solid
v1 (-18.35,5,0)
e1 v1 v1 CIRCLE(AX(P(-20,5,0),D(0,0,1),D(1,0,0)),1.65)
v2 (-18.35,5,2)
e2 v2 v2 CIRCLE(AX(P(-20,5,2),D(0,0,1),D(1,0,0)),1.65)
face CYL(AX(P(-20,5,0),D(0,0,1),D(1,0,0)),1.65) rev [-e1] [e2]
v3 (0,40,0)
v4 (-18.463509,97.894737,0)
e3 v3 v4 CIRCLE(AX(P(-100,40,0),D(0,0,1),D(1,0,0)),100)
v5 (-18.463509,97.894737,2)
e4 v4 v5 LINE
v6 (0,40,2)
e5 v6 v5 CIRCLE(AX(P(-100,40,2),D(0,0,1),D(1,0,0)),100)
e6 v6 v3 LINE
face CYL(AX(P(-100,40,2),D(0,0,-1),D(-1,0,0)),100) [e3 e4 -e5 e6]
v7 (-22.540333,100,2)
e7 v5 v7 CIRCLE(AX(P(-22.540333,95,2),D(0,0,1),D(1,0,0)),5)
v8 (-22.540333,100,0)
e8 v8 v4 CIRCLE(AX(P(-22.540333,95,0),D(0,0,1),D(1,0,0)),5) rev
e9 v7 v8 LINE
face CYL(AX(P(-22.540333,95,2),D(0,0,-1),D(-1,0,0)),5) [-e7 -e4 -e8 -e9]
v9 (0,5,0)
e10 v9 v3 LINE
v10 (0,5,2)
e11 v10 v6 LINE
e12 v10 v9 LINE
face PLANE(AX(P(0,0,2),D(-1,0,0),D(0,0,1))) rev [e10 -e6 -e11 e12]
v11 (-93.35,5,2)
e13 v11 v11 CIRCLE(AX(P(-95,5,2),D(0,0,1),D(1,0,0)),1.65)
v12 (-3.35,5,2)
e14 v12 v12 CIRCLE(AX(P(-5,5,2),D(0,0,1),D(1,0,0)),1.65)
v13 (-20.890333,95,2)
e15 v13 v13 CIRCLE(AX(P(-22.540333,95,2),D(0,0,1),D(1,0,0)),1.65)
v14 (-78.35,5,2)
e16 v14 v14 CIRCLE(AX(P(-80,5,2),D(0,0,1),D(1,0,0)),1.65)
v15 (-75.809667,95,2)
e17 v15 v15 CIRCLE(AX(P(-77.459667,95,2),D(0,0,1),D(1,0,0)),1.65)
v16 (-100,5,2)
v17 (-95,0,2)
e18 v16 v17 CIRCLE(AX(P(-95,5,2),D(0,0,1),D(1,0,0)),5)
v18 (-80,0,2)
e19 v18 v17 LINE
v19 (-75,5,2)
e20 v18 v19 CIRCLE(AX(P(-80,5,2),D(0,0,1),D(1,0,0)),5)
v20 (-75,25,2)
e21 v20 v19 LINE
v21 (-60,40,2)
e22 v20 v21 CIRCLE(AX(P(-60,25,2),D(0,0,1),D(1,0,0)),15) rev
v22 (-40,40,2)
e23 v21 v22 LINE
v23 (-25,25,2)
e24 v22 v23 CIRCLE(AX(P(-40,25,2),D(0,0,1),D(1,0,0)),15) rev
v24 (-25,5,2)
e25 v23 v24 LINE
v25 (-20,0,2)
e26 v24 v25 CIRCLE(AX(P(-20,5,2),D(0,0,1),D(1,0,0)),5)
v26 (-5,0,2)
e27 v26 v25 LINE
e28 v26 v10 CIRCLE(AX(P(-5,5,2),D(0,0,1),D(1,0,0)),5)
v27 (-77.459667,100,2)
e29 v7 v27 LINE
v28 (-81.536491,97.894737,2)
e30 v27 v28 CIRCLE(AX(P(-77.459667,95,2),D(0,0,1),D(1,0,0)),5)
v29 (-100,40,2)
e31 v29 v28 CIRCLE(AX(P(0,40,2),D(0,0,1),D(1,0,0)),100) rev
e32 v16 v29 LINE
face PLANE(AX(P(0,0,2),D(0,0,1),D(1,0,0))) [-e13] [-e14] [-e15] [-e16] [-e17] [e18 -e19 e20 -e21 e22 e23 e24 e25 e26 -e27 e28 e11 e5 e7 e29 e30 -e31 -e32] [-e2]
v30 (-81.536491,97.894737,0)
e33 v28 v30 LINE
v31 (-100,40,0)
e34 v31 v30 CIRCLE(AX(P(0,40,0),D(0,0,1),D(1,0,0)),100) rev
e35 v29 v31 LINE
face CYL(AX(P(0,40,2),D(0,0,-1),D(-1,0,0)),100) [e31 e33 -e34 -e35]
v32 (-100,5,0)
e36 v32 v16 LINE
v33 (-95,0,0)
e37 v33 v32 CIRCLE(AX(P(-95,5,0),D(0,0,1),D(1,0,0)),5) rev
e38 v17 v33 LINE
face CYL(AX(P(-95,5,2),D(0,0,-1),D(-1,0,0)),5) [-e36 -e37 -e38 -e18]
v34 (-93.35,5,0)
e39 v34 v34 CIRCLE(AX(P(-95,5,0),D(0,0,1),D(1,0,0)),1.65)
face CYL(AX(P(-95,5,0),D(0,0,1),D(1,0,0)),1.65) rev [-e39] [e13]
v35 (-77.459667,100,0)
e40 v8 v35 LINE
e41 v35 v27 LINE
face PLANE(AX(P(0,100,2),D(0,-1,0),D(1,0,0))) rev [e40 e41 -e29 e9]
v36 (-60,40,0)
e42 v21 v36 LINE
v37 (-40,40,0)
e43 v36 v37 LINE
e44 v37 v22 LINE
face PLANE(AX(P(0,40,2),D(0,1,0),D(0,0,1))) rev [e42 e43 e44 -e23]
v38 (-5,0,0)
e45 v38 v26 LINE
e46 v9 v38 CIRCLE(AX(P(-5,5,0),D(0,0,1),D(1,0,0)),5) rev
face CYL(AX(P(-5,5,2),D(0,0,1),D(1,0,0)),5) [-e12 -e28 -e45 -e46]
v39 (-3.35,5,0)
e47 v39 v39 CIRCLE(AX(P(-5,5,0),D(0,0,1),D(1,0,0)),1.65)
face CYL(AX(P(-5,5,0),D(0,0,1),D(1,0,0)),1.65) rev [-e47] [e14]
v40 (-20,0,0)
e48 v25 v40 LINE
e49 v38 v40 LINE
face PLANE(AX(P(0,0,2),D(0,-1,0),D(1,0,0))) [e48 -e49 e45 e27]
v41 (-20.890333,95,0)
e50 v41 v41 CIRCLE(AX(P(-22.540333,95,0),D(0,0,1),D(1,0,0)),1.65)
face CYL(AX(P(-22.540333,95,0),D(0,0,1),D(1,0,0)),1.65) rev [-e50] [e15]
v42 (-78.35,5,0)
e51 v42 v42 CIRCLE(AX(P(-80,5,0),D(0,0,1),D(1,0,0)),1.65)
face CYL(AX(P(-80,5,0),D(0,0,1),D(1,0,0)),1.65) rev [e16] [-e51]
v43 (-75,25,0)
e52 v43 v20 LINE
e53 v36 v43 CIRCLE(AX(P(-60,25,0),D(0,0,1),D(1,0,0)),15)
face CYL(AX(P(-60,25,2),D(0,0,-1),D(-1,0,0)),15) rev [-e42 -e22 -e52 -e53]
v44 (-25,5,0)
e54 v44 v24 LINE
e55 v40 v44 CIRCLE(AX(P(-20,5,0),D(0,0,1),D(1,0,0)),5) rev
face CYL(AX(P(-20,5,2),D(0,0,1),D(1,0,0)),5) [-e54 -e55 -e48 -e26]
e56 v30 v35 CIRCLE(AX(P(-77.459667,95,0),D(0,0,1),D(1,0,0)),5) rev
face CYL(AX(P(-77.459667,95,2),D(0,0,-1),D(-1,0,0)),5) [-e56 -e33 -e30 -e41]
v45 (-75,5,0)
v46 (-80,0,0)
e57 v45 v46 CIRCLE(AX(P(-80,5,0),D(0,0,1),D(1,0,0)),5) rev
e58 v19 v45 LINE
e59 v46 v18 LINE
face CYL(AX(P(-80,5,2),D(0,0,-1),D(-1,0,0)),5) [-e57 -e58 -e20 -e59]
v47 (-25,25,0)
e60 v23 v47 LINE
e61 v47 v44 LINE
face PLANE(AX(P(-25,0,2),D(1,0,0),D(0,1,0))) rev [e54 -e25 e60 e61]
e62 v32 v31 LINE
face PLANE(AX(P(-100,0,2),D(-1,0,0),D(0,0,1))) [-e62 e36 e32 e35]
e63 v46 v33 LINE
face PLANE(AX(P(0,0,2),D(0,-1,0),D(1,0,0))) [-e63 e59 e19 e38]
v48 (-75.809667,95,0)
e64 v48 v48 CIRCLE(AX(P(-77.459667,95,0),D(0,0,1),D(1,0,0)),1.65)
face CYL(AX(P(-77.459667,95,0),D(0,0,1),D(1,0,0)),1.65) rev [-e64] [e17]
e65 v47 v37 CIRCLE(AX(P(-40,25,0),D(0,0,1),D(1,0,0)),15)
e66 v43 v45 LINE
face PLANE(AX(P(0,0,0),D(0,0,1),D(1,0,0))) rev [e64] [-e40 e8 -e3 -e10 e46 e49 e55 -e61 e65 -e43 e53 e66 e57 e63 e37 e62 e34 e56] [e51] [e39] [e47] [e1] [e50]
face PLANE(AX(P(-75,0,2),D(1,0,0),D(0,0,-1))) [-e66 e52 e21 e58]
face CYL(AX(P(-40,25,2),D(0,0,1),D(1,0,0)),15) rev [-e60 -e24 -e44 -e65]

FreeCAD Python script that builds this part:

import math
import FreeCAD as App
import Part
import Sketcher
from FreeCAD import Vector
Q = App.Units.Quantity


def edges_at(feature, points):
    """Names of the edges that pass closest to the given points."""
    edges = feature.Shape.Edges
    near = lambda p: min(range(len(edges)), key=lambda i: edges[i].distToShape(Part.Vertex(*p))[0])
    return sorted({f"Edge{near(p) + 1}" for p in points})

doc = App.newDocument("Part")
body = doc.addObject("PartDesign::Body", "Body")

# Sketch on XY plane
sketch1 = doc.addObject("Sketcher::SketchObject", "Sketch")
body.addObject(sketch1)
sketch1.AttachmentSupport = (doc.XY_Plane, [""])
sketch1.MapMode = "FlatFace"
sketch1.addGeometry(Part.ArcOfCircle(Part.Circle(Vector(-100, 40, 0), Vector(0, 0, 1), 100), math.radians(0), math.radians(37)), False)
sketch1.addGeometry(Part.LineSegment(Vector(-20, 100, 0), Vector(-80, 100, 0)), False)
sketch1.addGeometry(Part.ArcOfCircle(Part.Circle(Vector(0, 40, 0), Vector(0, 0, 1), 100), math.radians(143), math.radians(180)), False)
sketch1.addGeometry(Part.LineSegment(Vector(-100, 40, 0), Vector(-100, 0, 0)), False)
sketch1.addGeometry(Part.LineSegment(Vector(-100, 0, 0), Vector(-75, 0, 0)), False)
sketch1.addGeometry(Part.LineSegment(Vector(-75, 0, 0), Vector(-75, 40, 0)), False)
sketch1.addGeometry(Part.LineSegment(Vector(-75, 40, 0), Vector(-25, 40, 0)), False)
sketch1.addGeometry(Part.LineSegment(Vector(-25, 40, 0), Vector(-25, 0, 0)), False)
sketch1.addGeometry(Part.LineSegment(Vector(-25, 0, 0), Vector(0, 0, 0)), False)
sketch1.addGeometry(Part.LineSegment(Vector(0, 0, 0), Vector(0, 40, 0)), False)
sketch1.addConstraint(Sketcher.Constraint("Coincident", 0, 2, 1, 1))
sketch1.addConstraint(Sketcher.Constraint("Coincident", 1, 2, 2, 1))
sketch1.addConstraint(Sketcher.Constraint("Tangent", 2, 2, 3, 1))
sketch1.addConstraint(Sketcher.Constraint("Coincident", 3, 2, 4, 1))
sketch1.addConstraint(Sketcher.Constraint("Coincident", 4, 2, 5, 1))
sketch1.addConstraint(Sketcher.Constraint("Coincident", 5, 2, 6, 1))
sketch1.addConstraint(Sketcher.Constraint("Coincident", 6, 2, 7, 1))
sketch1.addConstraint(Sketcher.Constraint("Coincident", 7, 2, 8, 1))
sketch1.addConstraint(Sketcher.Constraint("Coincident", 8, 2, 9, 1))
sketch1.addConstraint(Sketcher.Constraint("Tangent", 9, 2, 0, 1))
sketch1.addConstraint(Sketcher.Constraint("Horizontal", 1))
sketch1.addConstraint(Sketcher.Constraint("Vertical", 3))
sketch1.addConstraint(Sketcher.Constraint("Horizontal", 4))
sketch1.addConstraint(Sketcher.Constraint("Vertical", 5))
sketch1.addConstraint(Sketcher.Constraint("Horizontal", 6))
sketch1.addConstraint(Sketcher.Constraint("Vertical", 7))
sketch1.addConstraint(Sketcher.Constraint("Horizontal", 8))
sketch1.addConstraint(Sketcher.Constraint("Vertical", 9))
sketch1.addConstraint(Sketcher.Constraint("Coincident", 8, 2, -1, 1))
sketch1.addConstraint(Sketcher.Constraint("Coincident", 2, 2, 0, 3))
sketch1.addConstraint(Sketcher.Constraint("Equal", 0, 2))
sketch1.addConstraint(Sketcher.Constraint("PointOnObject", 3, 2, -1))
sketch1.addConstraint(Sketcher.Constraint("Horizontal", 2, 2, 5, 2))
sketch1.addConstraint(Sketcher.Constraint("Equal", 4, 8))
sketch1.addConstraint(Sketcher.Constraint("Radius", 0, Q("100 mm")))
sketch1.addConstraint(Sketcher.Constraint("DistanceX", 1, 2, 1, 1, Q("60 mm")))
sketch1.addConstraint(Sketcher.Constraint("DistanceX", 4, 1, 4, 2, Q("25 mm")))
sketch1.addConstraint(Sketcher.Constraint("DistanceY", 3, 2, 3, 1, Q("40 mm")))
pad1 = doc.addObject("PartDesign::Pad", "Pad")
body.addObject(pad1)
pad1.Profile = sketch1
pad1.Length = 2
doc.recompute()

fillet = doc.addObject("PartDesign::Fillet", "Fillet")
body.addObject(fillet)
fillet.Base = (pad1, edges_at(pad1, [(-75, 40, 1), (-25, 40, 1)]))
fillet.Radius = 15
doc.recompute()

fillet2 = doc.addObject("PartDesign::Fillet", "Fillet001")
body.addObject(fillet2)
fillet2.Base = (fillet, edges_at(fillet, [
    (-75, 0, 1),
    (-100, 0, 1),
    (0, 0, 1),
    (-25, 0, 1),
]))
fillet2.Radius = 5
doc.recompute()

fillet3 = doc.addObject("PartDesign::Fillet", "Fillet002")
body.addObject(fillet3)
fillet3.Base = (fillet2, edges_at(fillet2, [(-80, 100, 1), (-20, 100, 1)]))
fillet3.Radius = 5

# Sketch on XY plane
sketch2 = doc.addObject("Sketcher::SketchObject", "Sketch001")
body.addObject(sketch2)
sketch2.AttachmentSupport = (doc.XY_Plane, [""])
sketch2.MapMode = "FlatFace"
sketch2.AttachmentOffset = App.Placement(Vector(0, 0, 2), App.Rotation())
sketch2.addGeometry(Part.Circle(Vector(-77.5, 95, 0), Vector(0, 0, 1), 1.6), False)
sketch2.addGeometry(Part.Circle(Vector(-22.5, 95, 0), Vector(0, 0, 1), 1.6), False)
sketch2.addGeometry(Part.Circle(Vector(-95, 5, 0), Vector(0, 0, 1), 1.6), False)
sketch2.addGeometry(Part.Circle(Vector(-5, 5, 0), Vector(0, 0, 1), 1.6), False)
sketch2.addGeometry(Part.Circle(Vector(-80, 5, 0), Vector(0, 0, 1), 1.6), False)
sketch2.addGeometry(Part.Circle(Vector(-20, 5, 0), Vector(0, 0, 1), 1.6), False)
sketch2.addConstraint(Sketcher.Constraint("Equal", 0, 1))
sketch2.addConstraint(Sketcher.Constraint("Equal", 1, 2))
sketch2.addConstraint(Sketcher.Constraint("Equal", 2, 3))
sketch2.addConstraint(Sketcher.Constraint("Equal", 3, 4))
sketch2.addConstraint(Sketcher.Constraint("Equal", 4, 5))
sketch2.addConstraint(Sketcher.Constraint("Horizontal", 0, 3, 1, 3))
sketch2.addConstraint(Sketcher.Constraint("Horizontal", 2, 3, 3, 3))
sketch2.addConstraint(Sketcher.Constraint("Horizontal", 3, 3, 4, 3))
sketch2.addConstraint(Sketcher.Constraint("Horizontal", 4, 3, 5, 3))
sketch2.addConstraint(Sketcher.Constraint("Diameter", 0, Q("3.3 mm")))
sketch2.addConstraint(Sketcher.Constraint("DistanceY", -1, 1, 0, 3, Q("95 mm")))
sketch2.addConstraint(Sketcher.Constraint("DistanceX", 2, 3, -1, 1, Q("95 mm")))
sketch2.addConstraint(Sketcher.Constraint("DistanceY", -1, 1, 2, 3, Q("5 mm")))
sketch2.addConstraint(Sketcher.Constraint("DistanceX", 3, 3, -1, 1, Q("5 mm")))
sketch2.addConstraint(Sketcher.Constraint("DistanceX", 4, 3, -1, 1, Q("80 mm")))
sketch2.addConstraint(Sketcher.Constraint("DistanceX", 5, 3, -1, 1, Q("20 mm")))
sketch2.addConstraint(Sketcher.Constraint("DistanceX", 0, 3, -1, 1, Q("77.459667 mm")))
sketch2.addConstraint(Sketcher.Constraint("DistanceX", 1, 3, -1, 1, Q("22.540333 mm")))
pocket1 = doc.addObject("PartDesign::Pocket", "Pocket")
body.addObject(pocket1)
pocket1.Profile = sketch2
pocket1.Length = 2

doc.recompute()
